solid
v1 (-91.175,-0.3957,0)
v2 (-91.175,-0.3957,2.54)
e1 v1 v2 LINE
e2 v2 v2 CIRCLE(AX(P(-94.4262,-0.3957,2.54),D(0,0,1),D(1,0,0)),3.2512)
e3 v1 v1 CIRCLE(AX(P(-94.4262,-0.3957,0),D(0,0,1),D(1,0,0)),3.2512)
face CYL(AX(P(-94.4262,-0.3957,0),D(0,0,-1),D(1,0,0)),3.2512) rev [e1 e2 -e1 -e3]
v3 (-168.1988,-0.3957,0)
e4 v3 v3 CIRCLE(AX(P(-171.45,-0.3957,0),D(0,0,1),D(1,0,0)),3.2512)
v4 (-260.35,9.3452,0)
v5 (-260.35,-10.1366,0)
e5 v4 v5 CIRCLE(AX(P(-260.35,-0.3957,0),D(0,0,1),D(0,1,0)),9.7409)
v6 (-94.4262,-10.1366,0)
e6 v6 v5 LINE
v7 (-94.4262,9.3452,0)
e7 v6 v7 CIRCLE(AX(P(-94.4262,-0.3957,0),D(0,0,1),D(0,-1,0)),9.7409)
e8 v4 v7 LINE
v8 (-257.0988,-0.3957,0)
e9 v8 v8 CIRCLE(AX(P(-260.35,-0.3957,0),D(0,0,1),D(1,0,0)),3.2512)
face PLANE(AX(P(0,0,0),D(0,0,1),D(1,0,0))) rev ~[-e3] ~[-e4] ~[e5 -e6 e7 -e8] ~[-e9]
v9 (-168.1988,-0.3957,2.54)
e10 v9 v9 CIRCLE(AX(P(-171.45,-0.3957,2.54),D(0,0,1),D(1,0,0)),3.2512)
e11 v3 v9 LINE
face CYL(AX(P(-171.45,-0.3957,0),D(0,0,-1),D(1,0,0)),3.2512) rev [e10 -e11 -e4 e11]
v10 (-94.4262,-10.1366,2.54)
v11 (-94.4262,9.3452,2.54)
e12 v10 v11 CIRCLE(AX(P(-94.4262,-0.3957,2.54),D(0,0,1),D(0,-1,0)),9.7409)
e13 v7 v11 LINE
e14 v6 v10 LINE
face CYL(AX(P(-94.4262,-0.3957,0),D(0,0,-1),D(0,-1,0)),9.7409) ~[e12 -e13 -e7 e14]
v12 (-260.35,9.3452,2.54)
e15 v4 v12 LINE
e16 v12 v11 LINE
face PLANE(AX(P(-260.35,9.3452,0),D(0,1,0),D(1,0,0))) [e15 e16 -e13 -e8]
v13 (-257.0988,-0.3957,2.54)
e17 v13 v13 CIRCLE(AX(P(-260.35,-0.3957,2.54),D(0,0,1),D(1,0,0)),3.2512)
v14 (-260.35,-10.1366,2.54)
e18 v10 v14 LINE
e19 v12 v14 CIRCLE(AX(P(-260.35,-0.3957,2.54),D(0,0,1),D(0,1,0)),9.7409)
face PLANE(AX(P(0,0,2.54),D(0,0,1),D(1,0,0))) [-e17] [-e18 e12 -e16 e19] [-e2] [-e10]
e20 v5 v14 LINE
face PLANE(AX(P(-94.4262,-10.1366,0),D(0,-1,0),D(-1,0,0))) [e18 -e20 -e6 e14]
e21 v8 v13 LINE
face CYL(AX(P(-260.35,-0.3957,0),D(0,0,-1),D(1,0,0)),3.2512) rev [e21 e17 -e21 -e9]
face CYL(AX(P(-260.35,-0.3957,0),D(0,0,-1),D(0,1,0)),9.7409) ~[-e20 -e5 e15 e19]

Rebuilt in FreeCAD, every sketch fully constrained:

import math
import FreeCAD as App
import Part
import Sketcher
Q = App.Units.Quantity

doc = App.newDocument("Part")
body = doc.addObject("PartDesign::Body", "Body")

# Sketch on XY plane
sketch1 = doc.addObject("Sketcher::SketchObject", "Sketch")
body.addObject(sketch1)
sketch1.AttachmentSupport = (doc.XY_Plane, [""])
sketch1.MapMode = "FlatFace"
sketch1.addGeometry([
    Part.LineSegment(App.Vector(-260.4, -10.1, 0), App.Vector(-94.4, -10.1, 0)),  # 0
    Part.ArcOfCircle(Part.Circle(App.Vector(-94.4, -0.4, 0), App.Vector(0, 0, 1), 9.7), math.radians(-90), math.radians(90)),  # 1
    Part.LineSegment(App.Vector(-94.4, 9.3, 0), App.Vector(-260.4, 9.3, 0)),  # 2
    Part.ArcOfCircle(Part.Circle(App.Vector(-260.4, -0.4, 0), App.Vector(0, 0, 1), 9.7), math.radians(90), math.radians(270)),  # 3
    Part.Circle(App.Vector(-260.4, -0.4, 0), App.Vector(0, 0, 1), 3.3),  # 4
    Part.Circle(App.Vector(-171.4, -0.4, 0), App.Vector(0, 0, 1), 3.3),  # 5
    Part.Circle(App.Vector(-94.4, -0.4, 0), App.Vector(0, 0, 1), 3.3),  # 6
], False)
sketch1.addConstraint([
    Sketcher.Constraint("Tangent", 0, 2, 1, 1),
    Sketcher.Constraint("Tangent", 1, 2, 2, 1),
    Sketcher.Constraint("Tangent", 2, 2, 3, 1),
    Sketcher.Constraint("Tangent", 3, 2, 0, 1),
    Sketcher.Constraint("Horizontal", 0),
    Sketcher.Constraint("Horizontal", 2),
    Sketcher.Constraint("Coincident", 4, 3, 3, 3),
    Sketcher.Constraint("Coincident", 6, 3, 1, 3),
    Sketcher.Constraint("Equal", 4, 5),
    Sketcher.Constraint("Equal", 5, 6),
    Sketcher.Constraint("Horizontal", 4, 3, 5, 3),
    Sketcher.Constraint("Diameter", 4, Q("0.256 in")),
    Sketcher.Constraint("Radius", 1, Q("0.3835 in")),
    Sketcher.Constraint("DistanceX", 3, 3, 5, 3, Q("3.5 in")),
    Sketcher.Constraint("DistanceX", 3, 3, -1, 1, Q("10.25 in")),
    Sketcher.Constraint("DistanceX", 0, 1, 0, 2, 165.9238),
    Sketcher.Constraint("DistanceY", 1, 3, -1, 1, 0.3957),
])
pad1 = doc.addObject("PartDesign::Pad", "Pad")
body.addObject(pad1)
pad1.Profile = sketch1
pad1.Length = Q("0.1 in")

doc.recompute()
